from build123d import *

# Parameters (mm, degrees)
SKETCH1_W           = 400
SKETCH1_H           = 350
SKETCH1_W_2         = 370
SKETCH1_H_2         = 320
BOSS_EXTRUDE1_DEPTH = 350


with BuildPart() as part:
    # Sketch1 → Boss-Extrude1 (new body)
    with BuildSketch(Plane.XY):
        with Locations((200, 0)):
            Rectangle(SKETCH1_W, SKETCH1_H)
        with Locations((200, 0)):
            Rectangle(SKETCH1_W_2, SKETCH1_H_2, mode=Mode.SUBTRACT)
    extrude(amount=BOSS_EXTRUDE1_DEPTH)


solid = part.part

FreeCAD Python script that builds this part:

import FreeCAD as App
import Part
import Sketcher
Q = App.Units.Quantity


def add_polygon(sketch, points):
    """Adds a closed chain of lines whose ends are joined by coincident constraints."""
    first, n = sketch.GeometryCount, len(points)
    for a, b in zip(points, points[1:] + points[:1]):
        sketch.addGeometry(Part.LineSegment(App.Vector(*a, 0), App.Vector(*b, 0)), False)
    for i in range(n):
        sketch.addConstraint(Sketcher.Constraint("Coincident", first + i, 2, first + (i + 1) % n, 1))

doc = App.newDocument("Part")
body = doc.addObject("PartDesign::Body", "Body")

# Sketch on XY plane
sketch1 = body.newObject("Sketcher::SketchObject", "Sketch")
sketch1.AttachmentSupport = (doc.getObject("XY_Plane"), [""])
sketch1.MapMode = "FlatFace"
add_polygon(sketch1, [(0, 175), (0, -175), (400, -175), (400, 175)])  # lines 0-3
add_polygon(sketch1, [(385, -160), (15, -160), (15, 160), (385, 160)])  # lines 4-7
sketch1.addConstraint(Sketcher.Constraint("Vertical", 0))
sketch1.addConstraint(Sketcher.Constraint("Horizontal", 1))
sketch1.addConstraint(Sketcher.Constraint("Vertical", 2))
sketch1.addConstraint(Sketcher.Constraint("Horizontal", 3))
sketch1.addConstraint(Sketcher.Constraint("Horizontal", 4))
sketch1.addConstraint(Sketcher.Constraint("Vertical", 5))
sketch1.addConstraint(Sketcher.Constraint("Horizontal", 6))
sketch1.addConstraint(Sketcher.Constraint("Vertical", 7))
sketch1.addConstraint(Sketcher.Constraint("Symmetric", 0, 2, 3, 2, -1, 1))
sketch1.addConstraint(Sketcher.Constraint("DistanceX", 1, 1, 1, 2, Q("400 mm")))
sketch1.addConstraint(Sketcher.Constraint("DistanceX", 4, 2, 4, 1, Q("370 mm")))
sketch1.addConstraint(Sketcher.Constraint("DistanceY", 0, 2, 0, 1, Q("350 mm")))
sketch1.addConstraint(Sketcher.Constraint("DistanceY", 5, 1, 5, 2, Q("320 mm")))
sketch1.addConstraint(Sketcher.Constraint("DistanceX", -1, 1, 4, 2, Q("15 mm")))
sketch1.addConstraint(Sketcher.Constraint("DistanceY", 4, 2, -1, 1, Q("160 mm")))
pad1 = body.newObject("PartDesign::Pad", "Pad")
pad1.Profile = sketch1
pad1.Length = 350

doc.recompute()
